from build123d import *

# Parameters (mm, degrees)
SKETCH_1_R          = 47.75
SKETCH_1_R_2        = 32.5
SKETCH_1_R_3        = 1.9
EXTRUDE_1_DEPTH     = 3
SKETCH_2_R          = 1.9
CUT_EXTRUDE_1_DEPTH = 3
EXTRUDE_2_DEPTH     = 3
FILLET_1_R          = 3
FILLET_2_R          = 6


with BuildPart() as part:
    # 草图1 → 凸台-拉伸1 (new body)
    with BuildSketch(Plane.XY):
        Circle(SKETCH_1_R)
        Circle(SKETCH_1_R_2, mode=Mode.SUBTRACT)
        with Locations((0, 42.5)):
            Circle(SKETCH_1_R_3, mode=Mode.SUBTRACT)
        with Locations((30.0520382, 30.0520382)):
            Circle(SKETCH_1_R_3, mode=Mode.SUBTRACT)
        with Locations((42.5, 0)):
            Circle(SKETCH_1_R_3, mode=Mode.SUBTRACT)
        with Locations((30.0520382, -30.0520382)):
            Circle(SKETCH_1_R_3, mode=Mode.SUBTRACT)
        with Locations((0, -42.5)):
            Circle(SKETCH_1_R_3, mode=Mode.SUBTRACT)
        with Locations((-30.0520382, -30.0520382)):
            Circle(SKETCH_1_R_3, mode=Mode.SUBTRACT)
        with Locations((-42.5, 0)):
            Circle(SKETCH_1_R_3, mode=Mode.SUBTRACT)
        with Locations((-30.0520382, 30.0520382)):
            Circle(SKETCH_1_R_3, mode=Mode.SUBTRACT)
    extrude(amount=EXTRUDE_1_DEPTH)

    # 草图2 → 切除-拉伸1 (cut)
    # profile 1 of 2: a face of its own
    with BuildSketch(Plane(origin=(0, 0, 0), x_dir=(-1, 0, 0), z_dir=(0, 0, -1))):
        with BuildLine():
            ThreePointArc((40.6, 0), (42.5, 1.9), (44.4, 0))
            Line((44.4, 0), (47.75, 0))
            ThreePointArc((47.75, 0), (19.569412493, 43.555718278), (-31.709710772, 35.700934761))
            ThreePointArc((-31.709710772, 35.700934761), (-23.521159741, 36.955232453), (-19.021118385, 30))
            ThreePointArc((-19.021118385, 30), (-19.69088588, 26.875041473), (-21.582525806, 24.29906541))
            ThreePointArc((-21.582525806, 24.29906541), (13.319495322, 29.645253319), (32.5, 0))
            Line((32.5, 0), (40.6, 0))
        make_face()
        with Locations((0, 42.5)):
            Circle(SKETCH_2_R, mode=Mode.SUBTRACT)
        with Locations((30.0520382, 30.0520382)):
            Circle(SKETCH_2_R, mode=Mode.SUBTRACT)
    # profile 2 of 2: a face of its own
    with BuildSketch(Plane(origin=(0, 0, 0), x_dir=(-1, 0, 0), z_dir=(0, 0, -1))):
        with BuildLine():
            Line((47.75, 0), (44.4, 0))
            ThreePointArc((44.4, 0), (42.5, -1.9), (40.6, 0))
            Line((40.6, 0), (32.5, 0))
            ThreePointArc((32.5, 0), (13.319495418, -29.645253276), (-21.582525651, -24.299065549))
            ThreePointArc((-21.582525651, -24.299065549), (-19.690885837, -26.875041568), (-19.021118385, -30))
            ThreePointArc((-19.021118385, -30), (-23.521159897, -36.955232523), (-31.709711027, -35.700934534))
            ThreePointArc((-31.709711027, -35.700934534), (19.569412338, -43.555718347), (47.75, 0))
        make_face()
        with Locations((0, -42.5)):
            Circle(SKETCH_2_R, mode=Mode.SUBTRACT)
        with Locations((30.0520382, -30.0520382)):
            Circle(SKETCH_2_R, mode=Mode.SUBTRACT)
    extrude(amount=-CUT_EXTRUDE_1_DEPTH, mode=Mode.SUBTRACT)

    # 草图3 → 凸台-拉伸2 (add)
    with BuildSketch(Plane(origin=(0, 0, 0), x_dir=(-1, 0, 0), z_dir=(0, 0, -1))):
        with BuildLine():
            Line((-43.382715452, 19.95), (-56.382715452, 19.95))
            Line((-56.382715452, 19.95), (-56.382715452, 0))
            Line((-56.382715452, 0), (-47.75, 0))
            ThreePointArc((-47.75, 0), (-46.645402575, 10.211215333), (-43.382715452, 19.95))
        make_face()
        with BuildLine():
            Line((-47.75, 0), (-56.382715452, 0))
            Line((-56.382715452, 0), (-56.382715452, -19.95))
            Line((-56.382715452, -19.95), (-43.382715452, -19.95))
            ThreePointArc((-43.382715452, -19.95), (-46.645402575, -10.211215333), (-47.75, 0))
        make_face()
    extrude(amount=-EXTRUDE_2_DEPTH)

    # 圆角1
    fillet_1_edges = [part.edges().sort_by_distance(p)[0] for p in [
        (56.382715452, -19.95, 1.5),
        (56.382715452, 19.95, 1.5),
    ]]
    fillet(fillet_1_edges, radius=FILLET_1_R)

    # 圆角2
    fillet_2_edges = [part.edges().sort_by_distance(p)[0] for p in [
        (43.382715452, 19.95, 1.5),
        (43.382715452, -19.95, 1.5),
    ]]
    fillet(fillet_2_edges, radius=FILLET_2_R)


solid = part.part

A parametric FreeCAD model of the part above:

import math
import FreeCAD as App
import Part
import Sketcher

V = App.Vector


def edges_at(feature, points):
    """Names of the edges that pass closest to the given points."""
    edges = feature.Shape.Edges
    near = lambda p: min(range(len(edges)), key=lambda i: edges[i].distToShape(Part.Vertex(*p))[0])
    return sorted({f"Edge{near(p) + 1}" for p in points})

doc = App.newDocument("Part")
body = doc.addObject("PartDesign::Body", "Body")

# Sketch on XY plane
sketch1 = body.newObject("Sketcher::SketchObject", "Sketch")
sketch1.AttachmentSupport = (doc.getObject("XY_Plane"), [""])
sketch1.MapMode = "FlatFace"
sketch1.addGeometry([
    Part.Circle(V(0, 0, 0), V(0, 0, 1), 47.8),  # 0
    Part.Circle(V(-30.1, -30.1, 0), V(0, 0, 1), 1.9),  # 1
    Part.Circle(V(-42.5, 0, 0), V(0, 0, 1), 1.9),  # 2
    Part.Circle(V(0, -42.5, 0), V(0, 0, 1), 1.9),  # 3
    Part.Circle(V(30.1, -30.1, 0), V(0, 0, 1), 1.9),  # 4
    Part.Circle(V(42.5, 0, 0), V(0, 0, 1), 1.9),  # 5
    Part.Circle(V(-30.1, 30.1, 0), V(0, 0, 1), 1.9),  # 6
    Part.Circle(V(0, 0, 0), V(0, 0, 1), 32.5),  # 7
    Part.Circle(V(0, 42.5, 0), V(0, 0, 1), 1.9),  # 8
    Part.Circle(V(30.1, 30.1, 0), V(0, 0, 1), 1.9),  # 9
], False)
sketch1.addConstraint([
    Sketcher.Constraint("Coincident", 0, 3, -1, 1),
    Sketcher.Constraint("Coincident", 7, 3, -1, 1),
    Sketcher.Constraint("Equal", 1, 2),
    Sketcher.Constraint("Equal", 2, 3),
    Sketcher.Constraint("Equal", 3, 4),
    Sketcher.Constraint("Equal", 4, 5),
    Sketcher.Constraint("Equal", 5, 6),
    Sketcher.Constraint("Equal", 6, 8),
    Sketcher.Constraint("Equal", 8, 9),
    Sketcher.Constraint("Symmetric", 2, 3, 5, 3, -1, 1),
    Sketcher.Constraint("Symmetric", 4, 3, 6, 3, -1, 1),
    Sketcher.Constraint("Symmetric", 3, 3, 8, 3, -1, 1),
    Sketcher.Constraint("Symmetric", 1, 3, 9, 3, -1, 1),
    Sketcher.Constraint("Symmetric", 1, 3, 4, 3, -2),
    Sketcher.Constraint("PointOnObject", 2, 3, -1),
    Sketcher.Constraint("PointOnObject", 3, 3, -2),
    Sketcher.Constraint("Diameter", 7, 65.0),
    Sketcher.Constraint("Diameter", 0, 95.5),
    Sketcher.Constraint("Diameter", 1, 3.8),
    Sketcher.Constraint("DistanceX", 2, 3, 5, 3, 85.0),
    Sketcher.Constraint("DistanceY", 3, 3, -1, 1, 42.5),
    Sketcher.Constraint("DistanceX", 1, 3, -1, 1, 30.052038),
    Sketcher.Constraint("DistanceY", 1, 3, -1, 1, 30.052038),
])
pad1 = body.newObject("PartDesign::Pad", "Pad")
pad1.Profile = sketch1
pad1.Length = 3

# Sketch on XY plane
sketch2 = body.newObject("Sketcher::SketchObject", "Sketch001")
sketch2.AttachmentSupport = (doc.getObject("XY_Plane"), [""])
sketch2.MapMode = "FlatFace"
sketch2.addGeometry([
    Part.ArcOfCircle(Part.Circle(V(0, 0, 0), V(0, 0, 1), 32.5), math.radians(48), math.radians(180)),  # 0
    Part.ArcOfCircle(Part.Circle(V(0, 0, 0), V(0, 0, 1), 32.5), math.radians(-180), math.radians(-48)),  # 1
    Part.ArcOfCircle(Part.Circle(V(26.6, -30, 0), V(0, 0, 1), 7.6), math.radians(132), math.radians(180)),  # 2
    Part.ArcOfCircle(Part.Circle(V(26.6, -30, 0), V(0, 0, 1), 7.6), math.radians(180), math.radians(312)),  # 3
    Part.ArcOfCircle(Part.Circle(V(0, 0, 0), V(0, 0, 1), 47.8), math.radians(180), math.radians(312)),  # 4
    Part.ArcOfCircle(Part.Circle(V(0, 0, 0), V(0, 0, 1), 47.8), math.radians(48), math.radians(180)),  # 5
    Part.ArcOfCircle(Part.Circle(V(26.6, 30, 0), V(0, 0, 1), 7.6), math.radians(48), math.radians(180)),  # 6
    Part.ArcOfCircle(Part.Circle(V(26.6, 30, 0), V(0, 0, 1), 7.6), math.radians(-180), math.radians(-132)),  # 7
    Part.Circle(V(-42.5, 0, 0), V(0, 0, 1), 1.9),  # 8
    Part.Circle(V(-30.1, 30.1, 0), V(0, 0, 1), 1.9),  # 9
    Part.Circle(V(0, 42.5, 0), V(0, 0, 1), 1.9),  # 10
    Part.Circle(V(0, -42.5, 0), V(0, 0, 1), 1.9),  # 11
    Part.Circle(V(-30.1, -30.1, 0), V(0, 0, 1), 1.9),  # 12
], False)
sketch2.addConstraint([
    Sketcher.Constraint("Tangent", 0, 2, 1, 1),
    Sketcher.Constraint("Tangent", 1, 2, 2, 1),
    Sketcher.Constraint("Tangent", 2, 2, 3, 1),
    Sketcher.Constraint("Tangent", 3, 2, 4, 2),
    Sketcher.Constraint("Tangent", 4, 1, 5, 2),
    Sketcher.Constraint("Tangent", 5, 1, 6, 1),
    Sketcher.Constraint("Tangent", 6, 2, 7, 1),
    Sketcher.Constraint("Tangent", 7, 2, 0, 1),
    Sketcher.Constraint("Coincident", 0, 3, -1, 1),
    Sketcher.Constraint("Coincident", 4, 3, -1, 1),
    Sketcher.Constraint("Equal", 0, 1),
    Sketcher.Constraint("Equal", 2, 3),
    Sketcher.Constraint("Equal", 4, 5),
    Sketcher.Constraint("Equal", 3, 6),
    Sketcher.Constraint("Equal", 8, 9),
    Sketcher.Constraint("Equal", 9, 10),
    Sketcher.Constraint("Equal", 10, 11),
    Sketcher.Constraint("Equal", 11, 12),
    Sketcher.Constraint("Symmetric", 10, 3, 11, 3, -1, 1),
    Sketcher.Constraint("Symmetric", 9, 3, 12, 3, -1),
    Sketcher.Constraint("Symmetric", 2, 2, 6, 2, -1),
    Sketcher.Constraint("PointOnObject", 8, 3, -1),
    Sketcher.Constraint("PointOnObject", 10, 3, -2),
    Sketcher.Constraint("PointOnObject", 0, 2, -1),
    Sketcher.Constraint("PointOnObject", 4, 1, -1),
    Sketcher.Constraint("Horizontal", 3, 3, 2, 2),
    Sketcher.Constraint("Diameter", 8, 3.8),
    Sketcher.Constraint("Radius", 0, 32.5),
    Sketcher.Constraint("Radius", 4, 47.75),
    Sketcher.Constraint("DistanceY", 2, 3, -1, 1, 30.0),
    Sketcher.Constraint("DistanceX", 8, 3, 0, 2, 10.0),
    Sketcher.Constraint("DistanceY", -1, 1, 10, 3, 42.5),
    Sketcher.Constraint("DistanceX", 9, 3, -1, 1, 30.052038),
    Sketcher.Constraint("DistanceY", -1, 1, 9, 3, 30.052038),
])
pocket1 = body.newObject("PartDesign::Pocket", "Pocket")
pocket1.Profile = sketch2
pocket1.Length = 3
pocket1.Reversed = True

# Sketch on XY plane
sketch3 = body.newObject("Sketcher::SketchObject", "Sketch002")
sketch3.AttachmentSupport = (doc.getObject("XY_Plane"), [""])
sketch3.MapMode = "FlatFace"
sketch3.addGeometry([
    Part.LineSegment(V(43, 20, 0), V(56, 20, 0)),  # 0
    Part.LineSegment(V(56, 20, 0), V(56, -20, 0)),  # 1
    Part.LineSegment(V(56, -20, 0), V(43, -20, 0)),  # 2
    Part.ArcOfCircle(Part.Circle(V(0, 0, 0), V(0, 0, 1), 48), math.radians(-25), math.radians(0)),  # 3
    Part.ArcOfCircle(Part.Circle(V(0, 0, 0), V(0, 0, 1), 48), math.radians(0), math.radians(25)),  # 4
], False)
sketch3.addConstraint([
    Sketcher.Constraint("Coincident", 0, 2, 1, 1),
    Sketcher.Constraint("Coincident", 1, 2, 2, 1),
    Sketcher.Constraint("Coincident", 2, 2, 3, 1),
    Sketcher.Constraint("Tangent", 3, 2, 4, 1),
    Sketcher.Constraint("Coincident", 4, 2, 0, 1),
    Sketcher.Constraint("Horizontal", 0),
    Sketcher.Constraint("Vertical", 1),
    Sketcher.Constraint("Horizontal", 2),
    Sketcher.Constraint("Coincident", 3, 3, -1, 1),
    Sketcher.Constraint("Equal", 3, 4),
    Sketcher.Constraint("PointOnObject", 3, 2, -1),
    Sketcher.Constraint("Vertical", 2, 2, 4, 2),
    Sketcher.Constraint("DistanceX", 0, 1, 0, 2, 13.0),
    Sketcher.Constraint("Radius", 3, 47.75),
    Sketcher.Constraint("DistanceY", 1, 2, 1, 1, 39.9),
])
pad2 = body.newObject("PartDesign::Pad", "Pad001")
pad2.Profile = sketch3
pad2.Length = 3
doc.recompute()

fillet = body.newObject("PartDesign::Fillet", "Fillet")
fillet.Base = (pad2, edges_at(pad2, [(56.383, -19.95, 1.5), (56.383, 19.95, 1.5)]))
fillet.Radius = 3
doc.recompute()

fillet2 = body.newObject("PartDesign::Fillet", "Fillet001")
fillet2.Base = (fillet, edges_at(fillet, [(43.383, 19.95, 1.5), (43.383, -19.95, 1.5)]))
fillet2.Radius = 6

doc.recompute()
